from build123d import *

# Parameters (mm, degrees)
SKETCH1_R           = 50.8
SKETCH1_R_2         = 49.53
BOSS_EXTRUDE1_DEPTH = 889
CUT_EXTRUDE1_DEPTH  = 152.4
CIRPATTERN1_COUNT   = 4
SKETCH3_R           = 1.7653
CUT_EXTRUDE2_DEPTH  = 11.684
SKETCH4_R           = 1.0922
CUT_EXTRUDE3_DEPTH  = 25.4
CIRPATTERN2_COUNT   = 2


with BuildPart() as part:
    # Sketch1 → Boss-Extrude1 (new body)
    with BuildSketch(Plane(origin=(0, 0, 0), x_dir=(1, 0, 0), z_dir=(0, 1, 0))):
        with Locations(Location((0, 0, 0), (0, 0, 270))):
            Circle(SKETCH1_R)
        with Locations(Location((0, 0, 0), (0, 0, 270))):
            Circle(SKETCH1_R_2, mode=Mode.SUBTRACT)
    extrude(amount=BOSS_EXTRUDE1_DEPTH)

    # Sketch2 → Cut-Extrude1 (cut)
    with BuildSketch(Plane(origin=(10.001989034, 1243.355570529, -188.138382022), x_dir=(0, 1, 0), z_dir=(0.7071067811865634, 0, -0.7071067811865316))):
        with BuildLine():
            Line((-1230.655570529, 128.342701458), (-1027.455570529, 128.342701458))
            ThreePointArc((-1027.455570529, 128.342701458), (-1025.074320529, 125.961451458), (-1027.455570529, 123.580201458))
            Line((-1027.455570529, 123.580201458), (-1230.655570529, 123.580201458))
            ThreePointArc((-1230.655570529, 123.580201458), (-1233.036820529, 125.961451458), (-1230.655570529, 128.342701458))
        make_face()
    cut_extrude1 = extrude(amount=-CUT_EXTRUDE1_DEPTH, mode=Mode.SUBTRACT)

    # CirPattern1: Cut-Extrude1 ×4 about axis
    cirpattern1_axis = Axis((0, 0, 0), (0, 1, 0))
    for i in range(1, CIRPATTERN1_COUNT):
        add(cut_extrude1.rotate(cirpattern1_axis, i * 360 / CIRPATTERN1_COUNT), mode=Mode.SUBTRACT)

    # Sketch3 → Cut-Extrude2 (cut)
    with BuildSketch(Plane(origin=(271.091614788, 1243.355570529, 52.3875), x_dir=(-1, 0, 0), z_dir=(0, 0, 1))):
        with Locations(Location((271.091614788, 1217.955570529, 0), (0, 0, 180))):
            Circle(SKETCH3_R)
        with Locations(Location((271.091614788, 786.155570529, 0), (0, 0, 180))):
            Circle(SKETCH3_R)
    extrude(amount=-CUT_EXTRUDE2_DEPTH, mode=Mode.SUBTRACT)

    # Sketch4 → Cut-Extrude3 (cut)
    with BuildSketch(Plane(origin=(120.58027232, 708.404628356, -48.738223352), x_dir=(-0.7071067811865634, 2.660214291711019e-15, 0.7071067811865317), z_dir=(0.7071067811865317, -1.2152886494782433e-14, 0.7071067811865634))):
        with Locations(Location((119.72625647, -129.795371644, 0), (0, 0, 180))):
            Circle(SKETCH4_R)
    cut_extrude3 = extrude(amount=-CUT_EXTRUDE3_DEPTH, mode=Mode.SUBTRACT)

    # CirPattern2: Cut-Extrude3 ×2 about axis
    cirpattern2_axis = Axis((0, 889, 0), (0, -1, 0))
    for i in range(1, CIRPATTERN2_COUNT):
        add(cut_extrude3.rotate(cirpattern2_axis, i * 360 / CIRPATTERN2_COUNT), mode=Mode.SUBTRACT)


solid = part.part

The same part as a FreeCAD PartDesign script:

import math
import FreeCAD as App
import Part
import Sketcher

V = App.Vector
Q = App.Units.Quantity

doc = App.newDocument("Part")
params = doc.addObject("Spreadsheet::Sheet", "Params")
for row, (alias, value) in enumerate([
    ("sketch1_diameter", "4 in"),
    ("sketch1_diameter2", "3.9 in"),
    ("pad1_length", "35 in"),
    ("sketch2_width", "8 in"),
    ("sketch2_radius", "0.09375 in"),
    ("pocket1_length", "6 in"),
    ("sketch3_diameter", "0.139 in"),
    ("pocket2_length", "0.46 in"),
    ("sketch4_diameter", "0.086 in"),
    ("pocket3_length", "1 in"),
], start=1):
    params.set(f"A{row}", alias)
    params.set(f"B{row}", "=" + value)
    params.setAlias(f"B{row}", alias)

body = doc.addObject("PartDesign::Body", "Body")

# Sketch on XZ plane
sketch1 = body.newObject("Sketcher::SketchObject", "Sketch")
sketch1.AttachmentSupport = (doc.getObject("XZ_Plane"), [""])
sketch1.MapMode = "FlatFace"
sketch1.addGeometry(Part.Circle(V(0, 0, 0), V(0, 0, 1), 51), False)
sketch1.addGeometry(Part.Circle(V(0, 0, 0), V(0, 0, 1), 50), False)
sketch1.addConstraint(Sketcher.Constraint("Coincident", 0, 3, -1, 1))
sketch1.addConstraint(Sketcher.Constraint("Coincident", 1, 3, -1, 1))
sketch1.addConstraint(Sketcher.Constraint("Diameter", 0, Q("4 in")))
sketch1.addConstraint(Sketcher.Constraint("Diameter", 1, Q("3.9 in")))
sketch1.setExpression("Constraints[2]", "Params.sketch1_diameter")
sketch1.setExpression("Constraints[3]", "Params.sketch1_diameter2")
pad1 = body.newObject("PartDesign::Pad", "Pad")
pad1.Profile = sketch1
pad1.setExpression("Length", "Params.pad1_length")
pad1.Reversed = True

# Sketch on an angled plane
sketch2 = body.newObject("Sketcher::SketchObject", "Sketch001")
sketch2.Placement = App.Placement(V(10.001989, 1243.355571, -188.138382), App.Rotation(V(0, 1, 0), V(0.707106781, 0, 0.707106781), V(0.707106781, 0, -0.707106781), "ZXY"))
sketch2.addGeometry(Part.LineSegment(V(-1027.5, 128.3, 0), V(-1230.7, 128.3, 0)), False)
sketch2.addGeometry(Part.ArcOfCircle(Part.Circle(V(-1230.7, 126, 0), V(0, 0, 1), 2.4), math.radians(90), math.radians(270)), False)
sketch2.addGeometry(Part.LineSegment(V(-1230.7, 123.6, 0), V(-1027.5, 123.6, 0)), False)
sketch2.addGeometry(Part.ArcOfCircle(Part.Circle(V(-1027.5, 126, 0), V(0, 0, 1), 2.4), math.radians(-90), math.radians(90)), False)
sketch2.addConstraint(Sketcher.Constraint("Tangent", 0, 2, 1, 1))
sketch2.addConstraint(Sketcher.Constraint("Tangent", 1, 2, 2, 1))
sketch2.addConstraint(Sketcher.Constraint("Tangent", 2, 2, 3, 1))
sketch2.addConstraint(Sketcher.Constraint("Tangent", 3, 2, 0, 1))
sketch2.addConstraint(Sketcher.Constraint("Horizontal", 0))
sketch2.addConstraint(Sketcher.Constraint("Horizontal", 2))
sketch2.addConstraint(Sketcher.Constraint("DistanceX", 0, 2, 0, 1, Q("8 in")))
sketch2.addConstraint(Sketcher.Constraint("Radius", 1, Q("0.09375 in")))
sketch2.addConstraint(Sketcher.Constraint("DistanceY", -1, 1, 0, 2, 128.342701))
sketch2.addConstraint(Sketcher.Constraint("DistanceX", 1, 3, -1, 1, 1230.655571))
sketch2.setExpression("Constraints[6]", "Params.sketch2_width")
sketch2.setExpression("Constraints[7]", "Params.sketch2_radius")
pocket1 = body.newObject("PartDesign::Pocket", "Pocket")
pocket1.Profile = sketch2
pocket1.setExpression("Length", "Params.pocket1_length")
doc.recompute()

polarpattern = body.newObject("PartDesign::PolarPattern", "PolarPattern")
polarpattern.Originals = [pocket1]
polarpattern.Axis = (doc.getObject("Y_Axis"), [""])
polarpattern.Angle = 360
polarpattern.Occurrences = 4
body.Tip = polarpattern

# Sketch on XY plane
sketch3 = body.newObject("Sketcher::SketchObject", "Sketch002")
sketch3.AttachmentSupport = (doc.getObject("XY_Plane"), [""])
sketch3.MapMode = "FlatFace"
sketch3.AttachmentOffset = App.Placement(V(0, 0, 2.0625 * 25.4), App.Rotation())
sketch3.addGeometry(Part.Circle(V(0, 25.4, 0), V(0, 0, 1), 1.8), False)
sketch3.addGeometry(Part.Circle(V(0, 457.2, 0), V(0, 0, 1), 1.8), False)
sketch3.addConstraint(Sketcher.Constraint("Equal", 0, 1))
sketch3.addConstraint(Sketcher.Constraint("PointOnObject", 0, 3, -2))
sketch3.addConstraint(Sketcher.Constraint("PointOnObject", 1, 3, -2))
sketch3.addConstraint(Sketcher.Constraint("Diameter", 0, Q("0.139 in")))
sketch3.addConstraint(Sketcher.Constraint("DistanceY", -1, 1, 0, 3, Q("1 in")))
sketch3.addConstraint(Sketcher.Constraint("DistanceY", -1, 1, 1, 3, Q("18 in")))
sketch3.setExpression("Constraints[3]", "Params.sketch3_diameter")
pocket2 = body.newObject("PartDesign::Pocket", "Pocket001")
pocket2.Profile = sketch3
pocket2.setExpression("Length", "Params.pocket2_length")

# Sketch on an angled plane
sketch4 = body.newObject("Sketcher::SketchObject", "Sketch003")
sketch4.Placement = App.Placement(V(120.580272, 708.404628, -48.738223), App.Rotation(V(-0.707106781, 0, 0.707106781), V(0, -0.999999999, 0), V(0.707106781, 0, 0.707106781), "ZXY"))
sketch4.addGeometry(Part.Circle(V(119.7, -129.8, 0), V(0, 0, 1), 1.1), False)
sketch4.addConstraint(Sketcher.Constraint("Diameter", 0, Q("0.086 in")))
sketch4.addConstraint(Sketcher.Constraint("DistanceY", 0, 3, -1, 1, 129.795372))
sketch4.addConstraint(Sketcher.Constraint("DistanceX", -1, 1, 0, 3, 119.726256))
sketch4.setExpression("Constraints[0]", "Params.sketch4_diameter")
pocket3 = body.newObject("PartDesign::Pocket", "Pocket002")
pocket3.Profile = sketch4
pocket3.setExpression("Length", "Params.pocket3_length")
doc.recompute()

polarpattern2 = body.newObject("PartDesign::PolarPattern", "PolarPattern001")
polarpattern2.Originals = [pocket3]
polarpattern2.Axis = (doc.getObject("Y_Axis"), [""])
polarpattern2.Angle = 360
polarpattern2.Occurrences = 2
body.Tip = polarpattern2

doc.recompute()
